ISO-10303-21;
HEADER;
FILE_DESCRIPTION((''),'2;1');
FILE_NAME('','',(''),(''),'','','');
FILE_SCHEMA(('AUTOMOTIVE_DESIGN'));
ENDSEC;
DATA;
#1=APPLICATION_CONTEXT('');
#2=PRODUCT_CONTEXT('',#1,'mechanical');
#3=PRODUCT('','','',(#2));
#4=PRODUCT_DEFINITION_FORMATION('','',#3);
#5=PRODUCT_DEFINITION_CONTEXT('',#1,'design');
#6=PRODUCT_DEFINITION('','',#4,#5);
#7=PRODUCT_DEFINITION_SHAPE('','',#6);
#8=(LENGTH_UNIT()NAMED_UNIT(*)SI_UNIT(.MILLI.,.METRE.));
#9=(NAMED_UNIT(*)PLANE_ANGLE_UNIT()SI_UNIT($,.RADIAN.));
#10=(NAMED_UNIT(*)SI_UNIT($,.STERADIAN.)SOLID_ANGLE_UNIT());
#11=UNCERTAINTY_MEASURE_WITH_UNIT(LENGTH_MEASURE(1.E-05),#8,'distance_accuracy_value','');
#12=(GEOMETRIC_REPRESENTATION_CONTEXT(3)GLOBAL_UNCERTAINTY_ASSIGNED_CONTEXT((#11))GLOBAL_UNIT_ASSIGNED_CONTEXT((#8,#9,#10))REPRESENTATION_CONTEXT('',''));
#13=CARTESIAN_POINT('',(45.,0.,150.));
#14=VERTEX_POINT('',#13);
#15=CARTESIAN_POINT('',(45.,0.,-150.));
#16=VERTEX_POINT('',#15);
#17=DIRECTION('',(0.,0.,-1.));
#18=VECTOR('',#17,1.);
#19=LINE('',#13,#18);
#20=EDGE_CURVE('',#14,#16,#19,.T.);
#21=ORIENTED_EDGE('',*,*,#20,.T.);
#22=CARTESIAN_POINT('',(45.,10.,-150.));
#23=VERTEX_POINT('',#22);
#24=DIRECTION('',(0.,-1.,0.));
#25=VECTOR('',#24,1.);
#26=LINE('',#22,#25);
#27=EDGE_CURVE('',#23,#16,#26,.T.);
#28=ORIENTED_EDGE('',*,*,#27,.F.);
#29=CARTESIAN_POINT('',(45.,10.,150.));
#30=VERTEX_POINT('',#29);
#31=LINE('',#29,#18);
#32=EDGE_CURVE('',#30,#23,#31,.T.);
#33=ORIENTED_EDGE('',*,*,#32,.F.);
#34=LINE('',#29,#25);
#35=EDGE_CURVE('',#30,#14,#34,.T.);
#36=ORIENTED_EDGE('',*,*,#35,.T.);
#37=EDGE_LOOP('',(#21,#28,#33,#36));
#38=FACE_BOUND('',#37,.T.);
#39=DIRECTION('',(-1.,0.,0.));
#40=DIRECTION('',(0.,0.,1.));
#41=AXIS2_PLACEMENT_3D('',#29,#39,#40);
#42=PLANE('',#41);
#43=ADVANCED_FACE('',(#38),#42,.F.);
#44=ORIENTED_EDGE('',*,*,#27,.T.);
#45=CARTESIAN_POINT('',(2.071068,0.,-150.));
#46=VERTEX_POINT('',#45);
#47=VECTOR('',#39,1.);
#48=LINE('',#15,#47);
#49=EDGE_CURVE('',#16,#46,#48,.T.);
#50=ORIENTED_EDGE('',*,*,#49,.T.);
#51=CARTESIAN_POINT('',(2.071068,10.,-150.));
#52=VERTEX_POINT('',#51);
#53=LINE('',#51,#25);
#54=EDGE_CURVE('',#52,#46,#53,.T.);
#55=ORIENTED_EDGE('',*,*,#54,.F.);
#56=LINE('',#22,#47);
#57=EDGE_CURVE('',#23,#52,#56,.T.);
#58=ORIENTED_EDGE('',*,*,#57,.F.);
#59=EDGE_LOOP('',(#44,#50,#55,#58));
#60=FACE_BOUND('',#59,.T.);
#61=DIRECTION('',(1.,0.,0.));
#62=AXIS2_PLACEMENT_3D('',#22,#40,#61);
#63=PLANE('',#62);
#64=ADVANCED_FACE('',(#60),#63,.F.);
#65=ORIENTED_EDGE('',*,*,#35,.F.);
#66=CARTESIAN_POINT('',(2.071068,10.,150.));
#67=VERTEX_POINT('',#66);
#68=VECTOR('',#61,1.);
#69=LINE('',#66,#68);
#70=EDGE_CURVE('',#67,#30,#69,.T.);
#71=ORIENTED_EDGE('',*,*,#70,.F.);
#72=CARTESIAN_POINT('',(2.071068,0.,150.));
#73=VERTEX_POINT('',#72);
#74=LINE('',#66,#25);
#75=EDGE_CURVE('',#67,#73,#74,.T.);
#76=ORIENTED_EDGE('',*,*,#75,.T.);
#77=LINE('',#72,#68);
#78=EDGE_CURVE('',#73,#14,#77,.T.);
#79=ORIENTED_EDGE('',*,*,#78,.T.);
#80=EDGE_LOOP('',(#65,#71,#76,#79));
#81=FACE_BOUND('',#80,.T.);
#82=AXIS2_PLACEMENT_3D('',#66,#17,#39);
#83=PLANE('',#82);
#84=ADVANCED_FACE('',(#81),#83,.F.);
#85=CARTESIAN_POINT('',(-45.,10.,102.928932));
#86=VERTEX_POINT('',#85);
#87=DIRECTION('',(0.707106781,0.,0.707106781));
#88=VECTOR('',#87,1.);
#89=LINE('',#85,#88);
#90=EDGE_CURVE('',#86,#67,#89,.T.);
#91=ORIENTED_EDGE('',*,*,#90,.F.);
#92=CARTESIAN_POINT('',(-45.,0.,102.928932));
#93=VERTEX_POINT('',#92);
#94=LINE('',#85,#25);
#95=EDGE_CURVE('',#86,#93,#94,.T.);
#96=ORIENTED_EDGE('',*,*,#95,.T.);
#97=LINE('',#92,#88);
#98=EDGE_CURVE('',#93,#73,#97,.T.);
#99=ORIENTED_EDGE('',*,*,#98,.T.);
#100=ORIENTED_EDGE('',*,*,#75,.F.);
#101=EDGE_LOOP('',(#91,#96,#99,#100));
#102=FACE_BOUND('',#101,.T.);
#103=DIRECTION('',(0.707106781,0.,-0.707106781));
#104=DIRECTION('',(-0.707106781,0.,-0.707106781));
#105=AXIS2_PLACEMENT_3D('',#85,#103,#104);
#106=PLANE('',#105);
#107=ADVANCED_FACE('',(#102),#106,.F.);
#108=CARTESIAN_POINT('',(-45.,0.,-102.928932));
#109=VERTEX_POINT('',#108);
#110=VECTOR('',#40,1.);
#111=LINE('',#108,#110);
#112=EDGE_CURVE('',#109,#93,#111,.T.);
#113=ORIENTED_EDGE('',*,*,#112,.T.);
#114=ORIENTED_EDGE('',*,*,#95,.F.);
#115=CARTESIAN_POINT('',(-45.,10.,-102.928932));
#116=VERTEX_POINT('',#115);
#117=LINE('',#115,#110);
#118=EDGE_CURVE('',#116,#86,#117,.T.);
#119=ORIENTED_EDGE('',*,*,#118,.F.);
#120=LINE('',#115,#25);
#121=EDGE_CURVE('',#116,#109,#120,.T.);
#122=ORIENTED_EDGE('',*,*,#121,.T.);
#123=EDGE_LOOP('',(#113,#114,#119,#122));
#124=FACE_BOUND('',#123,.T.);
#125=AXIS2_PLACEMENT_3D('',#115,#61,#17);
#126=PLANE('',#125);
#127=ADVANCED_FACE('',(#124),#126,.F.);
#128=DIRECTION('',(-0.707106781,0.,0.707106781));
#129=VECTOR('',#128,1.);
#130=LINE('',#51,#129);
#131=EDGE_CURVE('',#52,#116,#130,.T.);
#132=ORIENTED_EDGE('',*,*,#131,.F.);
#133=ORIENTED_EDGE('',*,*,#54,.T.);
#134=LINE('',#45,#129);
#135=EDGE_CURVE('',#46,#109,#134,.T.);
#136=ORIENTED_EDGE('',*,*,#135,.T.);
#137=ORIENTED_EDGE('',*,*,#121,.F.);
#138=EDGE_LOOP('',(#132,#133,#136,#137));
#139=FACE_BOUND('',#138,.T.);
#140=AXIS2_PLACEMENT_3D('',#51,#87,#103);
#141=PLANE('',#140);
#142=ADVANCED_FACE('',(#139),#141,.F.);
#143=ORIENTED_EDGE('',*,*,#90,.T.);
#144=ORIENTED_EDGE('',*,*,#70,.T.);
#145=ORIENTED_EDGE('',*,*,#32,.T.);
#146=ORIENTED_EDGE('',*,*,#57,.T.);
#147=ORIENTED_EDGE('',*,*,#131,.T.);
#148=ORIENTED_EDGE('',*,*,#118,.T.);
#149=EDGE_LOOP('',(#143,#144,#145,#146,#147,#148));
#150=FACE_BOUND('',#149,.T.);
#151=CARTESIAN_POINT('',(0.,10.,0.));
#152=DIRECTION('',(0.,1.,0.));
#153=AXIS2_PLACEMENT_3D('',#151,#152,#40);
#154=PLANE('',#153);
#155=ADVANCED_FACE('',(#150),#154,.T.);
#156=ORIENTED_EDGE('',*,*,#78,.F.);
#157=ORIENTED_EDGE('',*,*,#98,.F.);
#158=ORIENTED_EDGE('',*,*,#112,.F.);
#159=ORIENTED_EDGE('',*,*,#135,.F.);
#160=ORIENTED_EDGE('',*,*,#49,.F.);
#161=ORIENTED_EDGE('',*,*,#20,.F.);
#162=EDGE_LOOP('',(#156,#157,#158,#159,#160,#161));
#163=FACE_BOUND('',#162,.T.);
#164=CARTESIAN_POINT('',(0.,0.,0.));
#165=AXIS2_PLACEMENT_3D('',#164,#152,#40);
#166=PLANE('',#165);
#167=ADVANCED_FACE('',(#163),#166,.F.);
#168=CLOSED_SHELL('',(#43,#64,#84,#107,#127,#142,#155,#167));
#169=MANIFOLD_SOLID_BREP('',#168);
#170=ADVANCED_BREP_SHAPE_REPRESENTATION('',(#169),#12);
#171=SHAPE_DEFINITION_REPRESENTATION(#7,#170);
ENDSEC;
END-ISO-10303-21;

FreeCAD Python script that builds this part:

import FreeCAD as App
import Part
import Sketcher

doc = App.newDocument("Part")
params = doc.addObject("Spreadsheet::Sheet", "Params")
for row, (alias, value) in enumerate([
    ("sketch1_height", "300 mm"),
    ("pad1_length", "10 mm"),
], start=1):
    params.set(f"A{row}", alias)
    params.set(f"B{row}", "=" + value)
    params.setAlias(f"B{row}", alias)

body = doc.addObject("PartDesign::Body", "Body")

sketch1 = doc.addObject("Sketcher::SketchObject", "Sketch")
body.addObject(sketch1)
sketch1.AttachmentSupport = (doc.XZ_Plane, [""])
sketch1.MapMode = "FlatFace"
sketch1.addGeometry(Part.LineSegment(App.Vector(45, -150, 0), App.Vector(2.071068, -150, 0)), False)
sketch1.addGeometry(Part.LineSegment(App.Vector(2.071068, -150, 0), App.Vector(-45, -102.928932, 0)), False)
sketch1.addGeometry(Part.LineSegment(App.Vector(-45, -102.928932, 0), App.Vector(-45, 102.928932, 0)), False)
sketch1.addGeometry(Part.LineSegment(App.Vector(-45, 102.928932, 0), App.Vector(2.071068, 150, 0)), False)
sketch1.addGeometry(Part.LineSegment(App.Vector(2.071068, 150, 0), App.Vector(45, 150, 0)), False)
sketch1.addGeometry(Part.LineSegment(App.Vector(45, 150, 0), App.Vector(45, -150, 0)), False)
sketch1.addConstraint(Sketcher.Constraint("Coincident", 0, 2, 1, 1))
sketch1.addConstraint(Sketcher.Constraint("Coincident", 1, 2, 2, 1))
sketch1.addConstraint(Sketcher.Constraint("Coincident", 2, 2, 3, 1))
sketch1.addConstraint(Sketcher.Constraint("Coincident", 3, 2, 4, 1))
sketch1.addConstraint(Sketcher.Constraint("Coincident", 4, 2, 5, 1))
sketch1.addConstraint(Sketcher.Constraint("Coincident", 5, 2, 0, 1))
sketch1.addConstraint(Sketcher.Constraint("Horizontal", 0))
sketch1.addConstraint(Sketcher.Constraint("Vertical", 2))
sketch1.addConstraint(Sketcher.Constraint("Horizontal", 4))
sketch1.addConstraint(Sketcher.Constraint("Vertical", 5))
sketch1.addConstraint(Sketcher.Constraint("Symmetric", 0, 2, 3, 2, -1))
sketch1.addConstraint(Sketcher.Constraint("Perpendicular", 1, 3))
sketch1.addConstraint(Sketcher.Constraint("Equal", 1, 3))
sketch1.addConstraint(Sketcher.Constraint("DistanceY", 5, 2, 5, 1, 300.0))
sketch1.addConstraint(Sketcher.Constraint("DistanceX", 1, 2, -1, 1, 45.0))
sketch1.addConstraint(Sketcher.Constraint("DistanceX", -1, 1, 4, 2, 45.0))
sketch1.addConstraint(Sketcher.Constraint("DistanceX", 0, 2, 0, 1, 42.928932))
sketch1.setExpression("Constraints[13]", "Params.sketch1_height")
pad1 = doc.addObject("PartDesign::Pad", "Pad")
body.addObject(pad1)
pad1.Profile = sketch1
pad1.setExpression("Length", "Params.pad1_length")
pad1.Reversed = True

doc.recompute()
